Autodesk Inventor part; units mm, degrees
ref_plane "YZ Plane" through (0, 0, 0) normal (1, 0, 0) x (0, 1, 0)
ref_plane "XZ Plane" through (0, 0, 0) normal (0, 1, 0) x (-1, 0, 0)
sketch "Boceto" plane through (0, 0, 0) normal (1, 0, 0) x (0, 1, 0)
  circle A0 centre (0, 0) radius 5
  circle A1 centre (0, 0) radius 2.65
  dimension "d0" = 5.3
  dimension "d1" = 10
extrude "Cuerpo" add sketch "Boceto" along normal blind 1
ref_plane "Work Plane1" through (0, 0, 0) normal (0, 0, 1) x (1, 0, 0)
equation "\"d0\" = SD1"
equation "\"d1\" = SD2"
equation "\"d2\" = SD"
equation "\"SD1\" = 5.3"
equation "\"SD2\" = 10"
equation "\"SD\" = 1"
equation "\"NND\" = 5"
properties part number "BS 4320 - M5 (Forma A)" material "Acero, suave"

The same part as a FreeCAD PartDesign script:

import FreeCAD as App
import Part
import Sketcher

doc = App.newDocument("Part")
params = doc.addObject("Spreadsheet::Sheet", "Params")
for row, (alias, value) in enumerate([
    ("sketch1_diameter", "10 mm"),
    ("sketch1_diameter2", "5.3 mm"),
    ("pad1_length", "1 mm"),
], start=1):
    params.set(f"A{row}", alias)
    params.set(f"B{row}", "=" + value)
    params.setAlias(f"B{row}", alias)

body = doc.addObject("PartDesign::Body", "Body")

# Sketch on YZ plane
sketch1 = doc.addObject("Sketcher::SketchObject", "Sketch")
body.addObject(sketch1)
sketch1.AttachmentSupport = (doc.YZ_Plane, [""])
sketch1.MapMode = "FlatFace"
sketch1.addGeometry([
    Part.Circle(App.Vector(0, 0, 0), App.Vector(0, 0, 1), 5),
    Part.Circle(App.Vector(0, 0, 0), App.Vector(0, 0, 1), 2.65),
], False)
sketch1.addConstraint([
    Sketcher.Constraint("Coincident", 0, 3, -1, 1),
    Sketcher.Constraint("Coincident", 1, 3, -1, 1),
    Sketcher.Constraint("Diameter", 0, 10.0),
    Sketcher.Constraint("Diameter", 1, 5.3),
])
sketch1.setExpression("Constraints[2]", "Params.sketch1_diameter")
sketch1.setExpression("Constraints[3]", "Params.sketch1_diameter2")
pad1 = doc.addObject("PartDesign::Pad", "Pad")
body.addObject(pad1)
pad1.Profile = sketch1
pad1.setExpression("Length", "Params.pad1_length")

doc.recompute()
